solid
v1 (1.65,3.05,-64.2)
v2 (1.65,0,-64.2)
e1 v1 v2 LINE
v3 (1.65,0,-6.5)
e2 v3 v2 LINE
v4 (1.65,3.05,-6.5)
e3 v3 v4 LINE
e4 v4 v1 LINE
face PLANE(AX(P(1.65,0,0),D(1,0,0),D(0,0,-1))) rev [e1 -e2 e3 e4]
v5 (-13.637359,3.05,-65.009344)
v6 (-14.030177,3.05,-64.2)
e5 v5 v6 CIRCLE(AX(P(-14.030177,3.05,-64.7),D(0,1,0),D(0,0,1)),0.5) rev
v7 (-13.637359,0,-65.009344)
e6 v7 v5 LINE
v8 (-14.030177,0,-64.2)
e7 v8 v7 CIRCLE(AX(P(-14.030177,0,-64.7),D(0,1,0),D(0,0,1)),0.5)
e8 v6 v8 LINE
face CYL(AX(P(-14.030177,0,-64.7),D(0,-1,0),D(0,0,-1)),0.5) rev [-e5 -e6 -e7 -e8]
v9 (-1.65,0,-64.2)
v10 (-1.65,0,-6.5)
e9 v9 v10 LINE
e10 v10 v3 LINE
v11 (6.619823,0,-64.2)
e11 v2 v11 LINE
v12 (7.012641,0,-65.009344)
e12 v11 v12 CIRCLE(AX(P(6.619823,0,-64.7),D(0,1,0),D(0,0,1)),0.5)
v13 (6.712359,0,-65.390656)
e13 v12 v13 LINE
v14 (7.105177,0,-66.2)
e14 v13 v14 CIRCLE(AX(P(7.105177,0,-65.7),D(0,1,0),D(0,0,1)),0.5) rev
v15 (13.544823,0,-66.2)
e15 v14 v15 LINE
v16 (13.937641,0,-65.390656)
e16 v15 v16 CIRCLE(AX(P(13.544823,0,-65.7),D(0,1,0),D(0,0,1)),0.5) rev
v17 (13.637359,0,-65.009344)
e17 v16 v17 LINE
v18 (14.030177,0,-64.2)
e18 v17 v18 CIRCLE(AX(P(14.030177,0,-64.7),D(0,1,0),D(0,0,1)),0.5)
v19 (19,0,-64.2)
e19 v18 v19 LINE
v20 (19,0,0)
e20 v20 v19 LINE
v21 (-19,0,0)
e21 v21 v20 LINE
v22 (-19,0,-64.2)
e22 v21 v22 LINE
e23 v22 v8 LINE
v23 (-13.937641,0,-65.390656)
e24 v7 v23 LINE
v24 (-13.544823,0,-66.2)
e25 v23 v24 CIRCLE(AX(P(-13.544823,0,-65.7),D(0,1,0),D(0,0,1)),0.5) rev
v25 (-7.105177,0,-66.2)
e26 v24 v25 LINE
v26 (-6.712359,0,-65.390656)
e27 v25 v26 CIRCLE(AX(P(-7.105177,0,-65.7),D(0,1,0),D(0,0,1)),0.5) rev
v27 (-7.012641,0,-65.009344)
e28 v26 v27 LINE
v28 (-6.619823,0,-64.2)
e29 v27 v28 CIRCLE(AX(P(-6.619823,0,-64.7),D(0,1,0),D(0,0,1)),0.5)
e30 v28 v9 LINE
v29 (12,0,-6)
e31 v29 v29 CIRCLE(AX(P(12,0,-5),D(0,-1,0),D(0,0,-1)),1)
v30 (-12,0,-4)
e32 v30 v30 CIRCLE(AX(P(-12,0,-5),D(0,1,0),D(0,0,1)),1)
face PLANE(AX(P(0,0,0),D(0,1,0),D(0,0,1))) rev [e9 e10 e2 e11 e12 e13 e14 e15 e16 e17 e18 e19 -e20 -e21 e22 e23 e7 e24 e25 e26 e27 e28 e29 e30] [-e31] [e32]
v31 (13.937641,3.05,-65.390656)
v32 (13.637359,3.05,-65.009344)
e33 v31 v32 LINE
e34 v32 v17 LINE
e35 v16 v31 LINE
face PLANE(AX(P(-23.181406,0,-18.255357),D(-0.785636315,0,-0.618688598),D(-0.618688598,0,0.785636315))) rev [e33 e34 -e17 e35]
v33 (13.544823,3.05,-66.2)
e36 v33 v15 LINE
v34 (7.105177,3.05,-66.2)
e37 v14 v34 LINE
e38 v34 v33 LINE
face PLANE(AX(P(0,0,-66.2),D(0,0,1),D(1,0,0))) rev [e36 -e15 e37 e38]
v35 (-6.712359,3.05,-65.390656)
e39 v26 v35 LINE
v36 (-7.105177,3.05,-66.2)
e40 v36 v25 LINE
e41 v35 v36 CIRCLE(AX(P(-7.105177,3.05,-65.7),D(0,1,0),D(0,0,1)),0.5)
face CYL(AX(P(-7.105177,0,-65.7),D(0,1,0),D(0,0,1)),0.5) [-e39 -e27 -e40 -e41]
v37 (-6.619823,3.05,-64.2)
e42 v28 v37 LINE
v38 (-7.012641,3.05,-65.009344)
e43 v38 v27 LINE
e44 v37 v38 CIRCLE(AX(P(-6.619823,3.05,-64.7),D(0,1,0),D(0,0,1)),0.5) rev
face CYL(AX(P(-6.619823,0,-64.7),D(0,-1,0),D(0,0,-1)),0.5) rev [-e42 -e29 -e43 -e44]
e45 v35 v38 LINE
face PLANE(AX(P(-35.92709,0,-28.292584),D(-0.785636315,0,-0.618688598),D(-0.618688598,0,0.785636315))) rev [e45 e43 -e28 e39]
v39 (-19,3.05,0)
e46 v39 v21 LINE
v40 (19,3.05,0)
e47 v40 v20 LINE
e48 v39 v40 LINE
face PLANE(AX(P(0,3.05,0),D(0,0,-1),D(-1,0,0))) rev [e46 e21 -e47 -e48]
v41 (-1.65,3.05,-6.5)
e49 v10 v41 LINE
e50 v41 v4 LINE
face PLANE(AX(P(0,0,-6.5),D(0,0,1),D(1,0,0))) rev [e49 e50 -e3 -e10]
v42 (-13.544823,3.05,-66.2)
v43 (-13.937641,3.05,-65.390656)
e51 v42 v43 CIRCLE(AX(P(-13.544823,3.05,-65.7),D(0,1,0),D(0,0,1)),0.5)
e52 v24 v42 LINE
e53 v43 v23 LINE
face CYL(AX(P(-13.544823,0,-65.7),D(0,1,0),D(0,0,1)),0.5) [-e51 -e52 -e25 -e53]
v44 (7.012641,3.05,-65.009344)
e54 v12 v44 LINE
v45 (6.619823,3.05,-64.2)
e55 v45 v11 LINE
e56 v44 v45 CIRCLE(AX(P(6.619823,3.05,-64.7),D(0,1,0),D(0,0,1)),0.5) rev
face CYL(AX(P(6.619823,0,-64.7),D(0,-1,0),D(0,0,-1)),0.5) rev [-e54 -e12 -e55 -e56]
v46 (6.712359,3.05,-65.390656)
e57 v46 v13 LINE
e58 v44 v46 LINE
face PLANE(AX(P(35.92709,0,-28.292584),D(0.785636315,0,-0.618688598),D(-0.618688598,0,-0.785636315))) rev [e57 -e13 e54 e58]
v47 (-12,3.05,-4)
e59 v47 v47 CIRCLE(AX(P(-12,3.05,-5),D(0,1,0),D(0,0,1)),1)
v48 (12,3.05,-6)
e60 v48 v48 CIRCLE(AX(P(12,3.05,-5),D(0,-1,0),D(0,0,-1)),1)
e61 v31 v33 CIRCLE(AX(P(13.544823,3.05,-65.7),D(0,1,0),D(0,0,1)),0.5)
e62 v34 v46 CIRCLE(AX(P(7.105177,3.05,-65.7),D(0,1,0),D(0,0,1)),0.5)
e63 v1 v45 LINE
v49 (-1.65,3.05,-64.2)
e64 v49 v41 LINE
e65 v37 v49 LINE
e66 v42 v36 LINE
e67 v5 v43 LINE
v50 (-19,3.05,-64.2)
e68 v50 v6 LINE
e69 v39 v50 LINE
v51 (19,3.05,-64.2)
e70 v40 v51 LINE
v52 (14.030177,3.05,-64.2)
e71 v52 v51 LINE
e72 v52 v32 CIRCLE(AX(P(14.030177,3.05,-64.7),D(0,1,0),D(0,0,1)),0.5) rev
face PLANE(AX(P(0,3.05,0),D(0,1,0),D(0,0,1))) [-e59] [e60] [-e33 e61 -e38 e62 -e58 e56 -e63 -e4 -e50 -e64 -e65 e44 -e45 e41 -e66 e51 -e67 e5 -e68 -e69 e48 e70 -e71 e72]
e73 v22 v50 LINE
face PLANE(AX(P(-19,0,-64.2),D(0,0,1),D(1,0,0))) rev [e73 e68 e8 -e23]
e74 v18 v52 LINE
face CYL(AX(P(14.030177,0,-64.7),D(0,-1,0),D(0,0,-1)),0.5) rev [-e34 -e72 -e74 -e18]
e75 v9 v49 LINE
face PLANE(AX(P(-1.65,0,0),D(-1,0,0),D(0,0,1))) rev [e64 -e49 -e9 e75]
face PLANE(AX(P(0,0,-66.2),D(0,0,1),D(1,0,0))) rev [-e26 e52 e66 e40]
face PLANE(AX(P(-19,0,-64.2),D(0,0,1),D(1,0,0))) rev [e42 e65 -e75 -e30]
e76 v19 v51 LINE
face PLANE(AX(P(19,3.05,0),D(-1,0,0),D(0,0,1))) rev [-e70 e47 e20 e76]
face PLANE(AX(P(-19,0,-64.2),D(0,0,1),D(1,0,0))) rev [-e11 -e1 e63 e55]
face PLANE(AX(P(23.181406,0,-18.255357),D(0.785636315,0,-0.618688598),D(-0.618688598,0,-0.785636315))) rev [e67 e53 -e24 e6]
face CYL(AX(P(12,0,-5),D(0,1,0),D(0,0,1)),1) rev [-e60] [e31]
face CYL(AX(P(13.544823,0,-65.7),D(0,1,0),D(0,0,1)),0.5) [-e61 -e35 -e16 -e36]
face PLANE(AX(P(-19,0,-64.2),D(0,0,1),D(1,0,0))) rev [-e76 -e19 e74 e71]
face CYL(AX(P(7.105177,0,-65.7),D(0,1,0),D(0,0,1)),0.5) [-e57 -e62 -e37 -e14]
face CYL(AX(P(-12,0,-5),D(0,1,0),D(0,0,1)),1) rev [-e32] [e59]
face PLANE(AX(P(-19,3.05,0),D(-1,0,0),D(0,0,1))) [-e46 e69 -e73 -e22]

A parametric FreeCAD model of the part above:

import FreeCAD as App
import Part
import Sketcher
from FreeCAD import Vector
Q = App.Units.Quantity


def edges_at(feature, points):
    """Names of the edges that pass closest to the given points."""
    edges = feature.Shape.Edges
    near = lambda p: min(range(len(edges)), key=lambda i: edges[i].distToShape(Part.Vertex(*p))[0])
    return sorted({f"Edge{near(p) + 1}" for p in points})

doc = App.newDocument("Part")
body = doc.addObject("PartDesign::Body", "Body")

# Sketch on XZ plane
sketch1 = body.newObject("Sketcher::SketchObject", "Sketch")
sketch1.AttachmentSupport = (doc.getObject("XZ_Plane"), [""])
sketch1.MapMode = "FlatFace"
sketch1.addGeometry([
    Part.LineSegment(Vector(-19, -72, 0), Vector(-19, 0, 0)),
    Part.LineSegment(Vector(-19, 0, 0), Vector(19, 0, 0)),
    Part.LineSegment(Vector(19, 0, 0), Vector(19, -72, 0)),
    Part.LineSegment(Vector(19, -72, 0), Vector(-19, -72, 0)),
], False)
sketch1.addConstraint([
    Sketcher.Constraint("Coincident", 0, 2, 1, 1),
    Sketcher.Constraint("Coincident", 1, 2, 2, 1),
    Sketcher.Constraint("Coincident", 2, 2, 3, 1),
    Sketcher.Constraint("Coincident", 3, 2, 0, 1),
    Sketcher.Constraint("Vertical", 0),
    Sketcher.Constraint("Horizontal", 1),
    Sketcher.Constraint("Vertical", 2),
    Sketcher.Constraint("Horizontal", 3),
    Sketcher.Constraint("Symmetric", 0, 2, 1, 2, -1, 1),
    Sketcher.Constraint("DistanceX", 1, 1, 1, 2, Q("38 mm")),
    Sketcher.Constraint("DistanceY", 0, 1, 0, 2, Q("72.5 mm")),
])
pad1 = body.newObject("PartDesign::Pad", "Pad")
pad1.Profile = sketch1
pad1.Length = 3.05
pad1.Reversed = True

# Sketch on XZ plane
sketch2 = body.newObject("Sketcher::SketchObject", "Sketch001")
sketch2.AttachmentSupport = (doc.getObject("XZ_Plane"), [""])
sketch2.MapMode = "FlatFace"
sketch2.AttachmentOffset = App.Placement(Vector(0, 0, -3.05), App.Rotation())
sketch2.addGeometry([
    Part.LineSegment(Vector(-1.6, -70.5, 0), Vector(-1.6, -69.5, 0)),  # 0
    Part.LineSegment(Vector(-1.6, -69.5, 0), Vector(1.6, -69.5, 0)),  # 1
    Part.LineSegment(Vector(1.6, -69.5, 0), Vector(1.6, -70.5, 0)),  # 2
    Part.LineSegment(Vector(1.6, -70.5, 0), Vector(-1.6, -70.5, 0)),  # 3
    Part.LineSegment(Vector(-1.6, -68.3, 0), Vector(-1.6, -6.5, 0)),  # 4
    Part.LineSegment(Vector(-1.6, -6.5, 0), Vector(1.6, -6.5, 0)),  # 5
    Part.LineSegment(Vector(1.6, -6.5, 0), Vector(1.6, -68.3, 0)),  # 6
    Part.LineSegment(Vector(1.6, -68.3, 0), Vector(-1.6, -68.3, 0)),  # 7
], False)
sketch2.addConstraint([
    Sketcher.Constraint("Coincident", 0, 2, 1, 1),
    Sketcher.Constraint("Coincident", 1, 2, 2, 1),
    Sketcher.Constraint("Coincident", 2, 2, 3, 1),
    Sketcher.Constraint("Coincident", 3, 2, 0, 1),
    Sketcher.Constraint("Coincident", 4, 2, 5, 1),
    Sketcher.Constraint("Coincident", 5, 2, 6, 1),
    Sketcher.Constraint("Coincident", 6, 2, 7, 1),
    Sketcher.Constraint("Coincident", 7, 2, 4, 1),
    Sketcher.Constraint("Vertical", 0),
    Sketcher.Constraint("Horizontal", 1),
    Sketcher.Constraint("Vertical", 2),
    Sketcher.Constraint("Horizontal", 3),
    Sketcher.Constraint("Vertical", 4),
    Sketcher.Constraint("Horizontal", 5),
    Sketcher.Constraint("Vertical", 6),
    Sketcher.Constraint("Horizontal", 7),
    Sketcher.Constraint("Vertical", 3, 2, 4, 2),
    Sketcher.Constraint("Vertical", 2, 2, 5, 2),
    Sketcher.Constraint("DistanceY", 0, 1, 0, 2, Q("1 mm")),
    Sketcher.Constraint("DistanceX", 1, 1, 1, 2, Q("3.3 mm")),
    Sketcher.Constraint("DistanceY", 4, 1, 4, 2, Q("61.8 mm")),
    Sketcher.Constraint("DistanceY", 0, 2, 4, 2, Q("63 mm")),
    Sketcher.Constraint("DistanceY", 0, 2, -1, 1, Q("69.5 mm")),
    Sketcher.Constraint("DistanceX", 0, 2, -1, 1, Q("1.65 mm")),
])
pocket1 = body.newObject("PartDesign::Pocket", "Pocket")
pocket1.Profile = sketch2
pocket1.Type = "ThroughAll"
pocket1.Reversed = True

# Sketch on XZ plane
sketch3 = body.newObject("Sketcher::SketchObject", "Sketch002")
sketch3.AttachmentSupport = (doc.getObject("XZ_Plane"), [""])
sketch3.MapMode = "FlatFace"
sketch3.AttachmentOffset = App.Placement(Vector(0, 0, -3.05), App.Rotation())
sketch3.addGeometry([
    Part.Circle(Vector(-12, -5, 0), Vector(0, 0, 1), 1),
    Part.Circle(Vector(12, -5, 0), Vector(0, 0, 1), 1),
], False)
sketch3.addConstraint([
    Sketcher.Constraint("Equal", 0, 1),
    Sketcher.Constraint("Symmetric", 0, 3, 1, 3, -2),
    Sketcher.Constraint("Diameter", 0, Q("2 mm")),
    Sketcher.Constraint("DistanceX", 0, 3, -1, 1, Q("12 mm")),
    Sketcher.Constraint("DistanceY", 0, 3, -1, 1, Q("5 mm")),
])
pocket2 = body.newObject("PartDesign::Pocket", "Pocket001")
pocket2.Profile = sketch3
pocket2.Type = "ThroughAll"
pocket2.Reversed = True

# Sketch on XZ plane
sketch4 = body.newObject("Sketcher::SketchObject", "Sketch003")
sketch4.AttachmentSupport = (doc.getObject("XZ_Plane"), [""])
sketch4.MapMode = "FlatFace"
sketch4.AttachmentOffset = App.Placement(Vector(0, 0, -3.05), App.Rotation())
sketch4.addGeometry([
    Part.LineSegment(Vector(-19, -72, 0), Vector(-19, -64, 0)),
    Part.LineSegment(Vector(-19, -64, 0), Vector(19, -64, 0)),
    Part.LineSegment(Vector(19, -64, 0), Vector(19, -72, 0)),
    Part.LineSegment(Vector(19, -72, 0), Vector(-19, -72, 0)),
], False)
sketch4.addConstraint([
    Sketcher.Constraint("Coincident", 0, 2, 1, 1),
    Sketcher.Constraint("Coincident", 1, 2, 2, 1),
    Sketcher.Constraint("Coincident", 2, 2, 3, 1),
    Sketcher.Constraint("Coincident", 3, 2, 0, 1),
    Sketcher.Constraint("Vertical", 0),
    Sketcher.Constraint("Horizontal", 1),
    Sketcher.Constraint("Vertical", 2),
    Sketcher.Constraint("Horizontal", 3),
    Sketcher.Constraint("DistanceX", 1, 1, 1, 2, Q("38 mm")),
    Sketcher.Constraint("DistanceY", 0, 1, 0, 2, Q("8.3 mm")),
    Sketcher.Constraint("DistanceX", 0, 2, -1, 1, Q("19 mm")),
    Sketcher.Constraint("DistanceY", 0, 2, -1, 1, Q("64.2 mm")),
])
pocket3 = body.newObject("PartDesign::Pocket", "Pocket002")
pocket3.Profile = sketch4
pocket3.Type = "ThroughAll"
pocket3.Reversed = True

# Sketch on XZ plane
sketch5 = body.newObject("Sketcher::SketchObject", "Sketch004")
sketch5.AttachmentSupport = (doc.getObject("XZ_Plane"), [""])
sketch5.MapMode = "FlatFace"
sketch5.AttachmentOffset = App.Placement(Vector(0, 0, -3.05), App.Rotation())
sketch5.addGeometry([
    Part.LineSegment(Vector(-14.6, -66.2, 0), Vector(-13, -64.2, 0)),  # 0
    Part.LineSegment(Vector(-13, -64.2, 0), Vector(-7.7, -64.2, 0)),  # 1
    Part.LineSegment(Vector(-7.7, -64.2, 0), Vector(-6.1, -66.2, 0)),  # 2
    Part.LineSegment(Vector(-6.1, -66.2, 0), Vector(-14.6, -66.2, 0)),  # 3
    Part.LineSegment(Vector(6.1, -66.2, 0), Vector(7.7, -64.2, 0)),  # 4
    Part.LineSegment(Vector(7.7, -64.2, 0), Vector(13, -64.2, 0)),  # 5
    Part.LineSegment(Vector(13, -64.2, 0), Vector(14.6, -66.2, 0)),  # 6
    Part.LineSegment(Vector(14.6, -66.2, 0), Vector(6.1, -66.2, 0)),  # 7
], False)
sketch5.addConstraint([
    Sketcher.Constraint("Coincident", 0, 2, 1, 1),
    Sketcher.Constraint("Coincident", 1, 2, 2, 1),
    Sketcher.Constraint("Coincident", 2, 2, 3, 1),
    Sketcher.Constraint("Coincident", 3, 2, 0, 1),
    Sketcher.Constraint("Coincident", 4, 2, 5, 1),
    Sketcher.Constraint("Coincident", 5, 2, 6, 1),
    Sketcher.Constraint("Coincident", 6, 2, 7, 1),
    Sketcher.Constraint("Coincident", 7, 2, 4, 1),
    Sketcher.Constraint("Horizontal", 1),
    Sketcher.Constraint("Horizontal", 3),
    Sketcher.Constraint("Horizontal", 5),
    Sketcher.Constraint("Horizontal", 7),
    Sketcher.Constraint("Symmetric", 1, 2, 4, 2, -2),
    Sketcher.Constraint("Symmetric", 3, 2, 6, 2, -2),
    Sketcher.Constraint("Parallel", 0, 4),
    Sketcher.Constraint("Parallel", 2, 6),
    Sketcher.Constraint("Equal", 1, 5),
    Sketcher.Constraint("DistanceX", 3, 2, 3, 1, Q("8.5 mm")),
    Sketcher.Constraint("DistanceX", 0, 2, -1, 1, Q("13 mm")),
    Sketcher.Constraint("DistanceY", 2, 2, 1, 2, Q("2 mm")),
    Sketcher.Constraint("DistanceX", 1, 1, 1, 2, Q("5.35 mm")),
    Sketcher.Constraint("DistanceY", 0, 2, -1, 1, Q("64.2 mm")),
])
pad2 = body.newObject("PartDesign::Pad", "Pad001")
pad2.Profile = sketch5
pad2.Length = 3.05
doc.recompute()

fillet = body.newObject("PartDesign::Fillet", "Fillet")
fillet.Base = (pad2, edges_at(pad2, [
    (-6.075, 1.525, -66.2),
    (-7.65, 1.525, -64.2),
    (-13, 1.525, -64.2),
    (-14.575, 1.525, -66.2),
    (14.575, 1.525, -66.2),
    (13, 1.525, -64.2),
    (7.65, 1.525, -64.2),
    (6.075, 1.525, -66.2),
]))
fillet.Radius = 0.5

doc.recompute()
